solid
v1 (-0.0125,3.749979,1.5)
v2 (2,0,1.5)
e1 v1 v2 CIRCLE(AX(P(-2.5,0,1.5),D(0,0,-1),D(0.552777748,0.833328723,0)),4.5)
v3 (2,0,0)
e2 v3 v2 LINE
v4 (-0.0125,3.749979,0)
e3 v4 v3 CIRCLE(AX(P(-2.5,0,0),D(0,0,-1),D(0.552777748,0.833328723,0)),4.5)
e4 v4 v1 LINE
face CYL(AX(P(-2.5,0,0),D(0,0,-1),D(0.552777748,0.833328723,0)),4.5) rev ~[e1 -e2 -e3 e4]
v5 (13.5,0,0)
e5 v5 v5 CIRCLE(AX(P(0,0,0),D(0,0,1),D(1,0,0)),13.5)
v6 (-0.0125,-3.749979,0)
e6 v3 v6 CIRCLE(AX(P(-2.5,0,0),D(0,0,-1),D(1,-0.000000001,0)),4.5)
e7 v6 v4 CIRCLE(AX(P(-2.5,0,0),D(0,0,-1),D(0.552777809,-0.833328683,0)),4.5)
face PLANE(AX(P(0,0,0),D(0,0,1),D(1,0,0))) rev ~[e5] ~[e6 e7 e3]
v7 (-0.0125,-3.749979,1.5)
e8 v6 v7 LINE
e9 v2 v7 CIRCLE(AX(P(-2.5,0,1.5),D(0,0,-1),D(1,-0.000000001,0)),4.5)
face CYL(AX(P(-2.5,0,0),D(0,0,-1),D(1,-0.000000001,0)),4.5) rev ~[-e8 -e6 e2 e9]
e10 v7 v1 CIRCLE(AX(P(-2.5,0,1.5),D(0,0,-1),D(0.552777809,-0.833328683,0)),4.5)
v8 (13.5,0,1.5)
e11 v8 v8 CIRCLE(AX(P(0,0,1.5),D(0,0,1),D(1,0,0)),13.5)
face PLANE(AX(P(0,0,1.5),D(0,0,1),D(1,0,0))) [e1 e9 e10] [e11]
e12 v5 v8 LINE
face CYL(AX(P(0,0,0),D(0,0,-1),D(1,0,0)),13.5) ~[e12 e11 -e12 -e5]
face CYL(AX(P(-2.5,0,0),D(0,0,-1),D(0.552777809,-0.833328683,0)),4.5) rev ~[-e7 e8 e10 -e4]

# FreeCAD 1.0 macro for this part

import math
import FreeCAD as App
import Part
import Sketcher

V = App.Vector
Q = App.Units.Quantity

doc = App.newDocument("Part")
params = doc.addObject("Spreadsheet::Sheet", "Params")
for row, (alias, value) in enumerate([
    ("sketch1_diameter", "27 mm"),
    ("sketch1_radius", "4.5 mm"),
    ("pad1_length", "1.5 mm"),
], start=1):
    params.set(f"A{row}", alias)
    params.set(f"B{row}", "=" + value)
    params.setAlias(f"B{row}", alias)

body = doc.addObject("PartDesign::Body", "Body")

sketch1 = body.newObject("Sketcher::SketchObject", "Sketch")
sketch1.AttachmentSupport = (doc.getObject("XY_Plane"), [""])
sketch1.MapMode = "FlatFace"
sketch1.addGeometry([
    Part.Circle(V(0, 0, 0), V(0, 0, 1), 13.5),
    Part.ArcOfCircle(Part.Circle(V(-2.5, 0, 0), V(0, 0, 1), 4.5), math.radians(56), math.radians(304)),
    Part.ArcOfCircle(Part.Circle(V(-2.5, 0, 0), V(0, 0, 1), 4.5), math.radians(0), math.radians(56)),
    Part.ArcOfCircle(Part.Circle(V(-2.5, 0, 0), V(0, 0, 1), 4.5), math.radians(-56), math.radians(0)),
], False)
sketch1.addConstraint([
    Sketcher.Constraint("Tangent", 1, 1, 2, 2),
    Sketcher.Constraint("Tangent", 2, 1, 3, 2),
    Sketcher.Constraint("Tangent", 3, 1, 1, 2),
    Sketcher.Constraint("Coincident", 0, 3, -1, 1),
    Sketcher.Constraint("Symmetric", 1, 1, 3, 1, -1),
    Sketcher.Constraint("PointOnObject", 2, 1, -1),
    Sketcher.Constraint("Diameter", 0, Q("27 mm")),
    Sketcher.Constraint("Radius", 1, Q("4.5 mm")),
    Sketcher.Constraint("DistanceX", -1, 1, 2, 1, Q("2 mm")),
    Sketcher.Constraint("DistanceX", 1, 1, -1, 1, Q("0.0125 mm")),
])
sketch1.setExpression("Constraints[6]", "Params.sketch1_diameter")
sketch1.setExpression("Constraints[7]", "Params.sketch1_radius")
pad1 = body.newObject("PartDesign::Pad", "Pad")
pad1.Profile = sketch1
pad1.setExpression("Length", "Params.pad1_length")

doc.recompute()
